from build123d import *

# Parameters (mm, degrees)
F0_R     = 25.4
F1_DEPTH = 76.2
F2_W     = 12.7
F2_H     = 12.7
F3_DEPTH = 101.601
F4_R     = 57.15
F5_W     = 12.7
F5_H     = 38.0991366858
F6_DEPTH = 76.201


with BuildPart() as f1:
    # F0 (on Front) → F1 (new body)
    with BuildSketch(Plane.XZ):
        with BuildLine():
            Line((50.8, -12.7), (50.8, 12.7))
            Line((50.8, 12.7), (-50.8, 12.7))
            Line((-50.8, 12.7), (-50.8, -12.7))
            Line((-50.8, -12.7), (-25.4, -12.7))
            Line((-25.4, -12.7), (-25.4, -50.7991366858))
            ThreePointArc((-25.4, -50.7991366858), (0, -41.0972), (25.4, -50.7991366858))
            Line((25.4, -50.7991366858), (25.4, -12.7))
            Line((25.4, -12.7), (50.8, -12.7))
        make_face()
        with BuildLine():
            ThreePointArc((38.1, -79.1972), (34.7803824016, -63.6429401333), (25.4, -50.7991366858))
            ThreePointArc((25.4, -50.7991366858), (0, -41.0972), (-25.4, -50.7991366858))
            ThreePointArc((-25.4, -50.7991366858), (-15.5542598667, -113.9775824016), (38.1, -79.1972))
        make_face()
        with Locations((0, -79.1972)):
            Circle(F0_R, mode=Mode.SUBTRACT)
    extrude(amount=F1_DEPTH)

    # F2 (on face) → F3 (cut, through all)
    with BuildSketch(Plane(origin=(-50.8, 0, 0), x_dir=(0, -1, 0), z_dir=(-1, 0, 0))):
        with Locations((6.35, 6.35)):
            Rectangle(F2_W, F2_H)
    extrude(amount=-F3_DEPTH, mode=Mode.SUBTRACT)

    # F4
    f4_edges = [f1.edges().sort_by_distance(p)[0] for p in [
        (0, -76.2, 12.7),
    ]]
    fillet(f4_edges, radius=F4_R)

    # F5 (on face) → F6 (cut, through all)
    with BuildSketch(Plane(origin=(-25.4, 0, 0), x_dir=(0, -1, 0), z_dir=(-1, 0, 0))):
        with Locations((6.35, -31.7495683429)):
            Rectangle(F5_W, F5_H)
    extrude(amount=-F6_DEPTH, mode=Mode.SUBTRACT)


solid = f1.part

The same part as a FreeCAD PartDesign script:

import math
import FreeCAD as App
import Part
import Sketcher

V = App.Vector
Q = App.Units.Quantity


def edges_at(feature, points):
    """Names of the edges that pass closest to the given points."""
    edges = feature.Shape.Edges
    near = lambda p: min(range(len(edges)), key=lambda i: edges[i].distToShape(Part.Vertex(*p))[0])
    return sorted({f"Edge{near(p) + 1}" for p in points})

doc = App.newDocument("Part")
body = doc.addObject("PartDesign::Body", "Body")

# Sketch on XZ plane
sketch1 = body.newObject("Sketcher::SketchObject", "Sketch")
sketch1.AttachmentSupport = (doc.getObject("XZ_Plane"), [""])
sketch1.MapMode = "FlatFace"
sketch1.addGeometry([
    Part.LineSegment(V(51, -13, 0), V(51, 13, 0)),  # 0
    Part.LineSegment(V(51, 13, 0), V(-51, 13, 0)),  # 1
    Part.LineSegment(V(-51, 13, 0), V(-51, -13, 0)),  # 2
    Part.LineSegment(V(-51, -13, 0), V(-25, -13, 0)),  # 3
    Part.LineSegment(V(-25, -13, 0), V(-25, -51, 0)),  # 4
    Part.ArcOfCircle(Part.Circle(V(0, -79, 0), V(0, 0, 1), 38), math.radians(132), math.radians(360)),  # 5
    Part.ArcOfCircle(Part.Circle(V(0, -79, 0), V(0, 0, 1), 38), math.radians(0), math.radians(48)),  # 6
    Part.LineSegment(V(25, -51, 0), V(25, -13, 0)),  # 7
    Part.LineSegment(V(25, -13, 0), V(51, -13, 0)),  # 8
    Part.Circle(V(0, -79, 0), V(0, 0, 1), 25),  # 9
], False)
sketch1.addConstraint([
    Sketcher.Constraint("Coincident", 0, 2, 1, 1),
    Sketcher.Constraint("Coincident", 1, 2, 2, 1),
    Sketcher.Constraint("Coincident", 2, 2, 3, 1),
    Sketcher.Constraint("Coincident", 3, 2, 4, 1),
    Sketcher.Constraint("Coincident", 4, 2, 5, 1),
    Sketcher.Constraint("Tangent", 5, 2, 6, 1),
    Sketcher.Constraint("Coincident", 6, 2, 7, 1),
    Sketcher.Constraint("Coincident", 7, 2, 8, 1),
    Sketcher.Constraint("Coincident", 8, 2, 0, 1),
    Sketcher.Constraint("Vertical", 0),
    Sketcher.Constraint("Horizontal", 1),
    Sketcher.Constraint("Vertical", 2),
    Sketcher.Constraint("Horizontal", 3),
    Sketcher.Constraint("Vertical", 4),
    Sketcher.Constraint("Vertical", 7),
    Sketcher.Constraint("Horizontal", 8),
    Sketcher.Constraint("Coincident", 9, 3, 5, 3),
    Sketcher.Constraint("Equal", 5, 6),
    Sketcher.Constraint("Symmetric", 0, 2, 2, 2, -1, 1),
    Sketcher.Constraint("Symmetric", 4, 2, 6, 2, -2),
    Sketcher.Constraint("Horizontal", 9, 3, 5, 2),
    Sketcher.Constraint("Horizontal", 3, 2, 7, 2),
    Sketcher.Constraint("Equal", 8, 0),
    Sketcher.Constraint("Diameter", 9, Q("2 in")),
    Sketcher.Constraint("Radius", 5, Q("1.5 in")),
    Sketcher.Constraint("DistanceX", 1, 2, 1, 1, Q("4 in")),
    Sketcher.Constraint("DistanceX", 3, 1, 3, 2, Q("1 in")),
    Sketcher.Constraint("DistanceY", 5, 3, -1, 1, Q("3.118 in")),
])
pad1 = body.newObject("PartDesign::Pad", "Pad")
pad1.Profile = sketch1
pad1.Length = Q("3 in")

# Sketch on YZ plane
sketch2 = body.newObject("Sketcher::SketchObject", "Sketch001")
sketch2.AttachmentSupport = (doc.getObject("YZ_Plane"), [""])
sketch2.MapMode = "FlatFace"
sketch2.AttachmentOffset = App.Placement(V(0, 0, -2 * 25.4), App.Rotation())
sketch2.addGeometry([
    Part.LineSegment(V(0, 13, 0), V(0, 0, 0)),
    Part.LineSegment(V(0, 0, 0), V(-13, 0, 0)),
    Part.LineSegment(V(-13, 0, 0), V(-13, 13, 0)),
    Part.LineSegment(V(-13, 13, 0), V(0, 13, 0)),
], False)
sketch2.addConstraint([
    Sketcher.Constraint("Coincident", 0, 2, 1, 1),
    Sketcher.Constraint("Coincident", 1, 2, 2, 1),
    Sketcher.Constraint("Coincident", 2, 2, 3, 1),
    Sketcher.Constraint("Coincident", 3, 2, 0, 1),
    Sketcher.Constraint("Vertical", 0),
    Sketcher.Constraint("Horizontal", 1),
    Sketcher.Constraint("Vertical", 2),
    Sketcher.Constraint("Horizontal", 3),
    Sketcher.Constraint("Coincident", 0, 2, -1, 1),
    Sketcher.Constraint("Equal", 3, 0),
    Sketcher.Constraint("DistanceX", 1, 2, 1, 1, Q("0.5 in")),
])
pocket1 = body.newObject("PartDesign::Pocket", "Pocket")
pocket1.Profile = sketch2
pocket1.Type = "ThroughAll"
pocket1.Reversed = True
doc.recompute()

fillet = body.newObject("PartDesign::Fillet", "Fillet")
fillet.Base = (pocket1, edges_at(pocket1, [(0, -76.2, 12.7)]))
fillet.Radius = Q("2.25 in")

# Sketch on YZ plane
sketch3 = body.newObject("Sketcher::SketchObject", "Sketch002")
sketch3.AttachmentSupport = (doc.getObject("YZ_Plane"), [""])
sketch3.MapMode = "FlatFace"
sketch3.AttachmentOffset = App.Placement(V(0, 0, -1 * 25.4), App.Rotation())
sketch3.addGeometry([
    Part.LineSegment(V(0, -13, 0), V(0, -51, 0)),
    Part.LineSegment(V(0, -51, 0), V(-13, -51, 0)),
    Part.LineSegment(V(-13, -51, 0), V(-13, -13, 0)),
    Part.LineSegment(V(-13, -13, 0), V(0, -13, 0)),
], False)
sketch3.addConstraint([
    Sketcher.Constraint("Coincident", 0, 2, 1, 1),
    Sketcher.Constraint("Coincident", 1, 2, 2, 1),
    Sketcher.Constraint("Coincident", 2, 2, 3, 1),
    Sketcher.Constraint("Coincident", 3, 2, 0, 1),
    Sketcher.Constraint("Vertical", 0),
    Sketcher.Constraint("Horizontal", 1),
    Sketcher.Constraint("Vertical", 2),
    Sketcher.Constraint("Horizontal", 3),
    Sketcher.Constraint("PointOnObject", 0, 2, -2),
    Sketcher.Constraint("DistanceX", 1, 2, 1, 1, Q("0.5 in")),
    Sketcher.Constraint("DistanceY", 2, 2, -1, 1, Q("0.5 in")),
    Sketcher.Constraint("DistanceY", 0, 2, 0, 1, Q("38.099137 mm")),
])
pocket2 = body.newObject("PartDesign::Pocket", "Pocket001")
pocket2.Profile = sketch3
pocket2.Type = "ThroughAll"
pocket2.Reversed = True

doc.recompute()
